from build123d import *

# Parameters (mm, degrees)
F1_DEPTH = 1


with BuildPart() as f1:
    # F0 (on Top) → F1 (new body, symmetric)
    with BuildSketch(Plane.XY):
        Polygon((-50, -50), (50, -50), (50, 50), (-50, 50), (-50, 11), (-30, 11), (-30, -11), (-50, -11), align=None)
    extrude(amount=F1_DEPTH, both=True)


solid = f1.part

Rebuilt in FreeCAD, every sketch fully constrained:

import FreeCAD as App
import Part
import Sketcher
Q = App.Units.Quantity

doc = App.newDocument("Part")
body = doc.addObject("PartDesign::Body", "Body")

# Sketch on XY plane
sketch1 = body.newObject("Sketcher::SketchObject", "Sketch")
sketch1.AttachmentSupport = (doc.getObject("XY_Plane"), [""])
sketch1.MapMode = "FlatFace"
sketch1.addGeometry([
    Part.LineSegment(App.Vector(-50, -50, 0), App.Vector(50, -50, 0)),  # 0
    Part.LineSegment(App.Vector(50, -50, 0), App.Vector(50, 50, 0)),  # 1
    Part.LineSegment(App.Vector(50, 50, 0), App.Vector(-50, 50, 0)),  # 2
    Part.LineSegment(App.Vector(-50, 50, 0), App.Vector(-50, 11, 0)),  # 3
    Part.LineSegment(App.Vector(-50, 11, 0), App.Vector(-30, 11, 0)),  # 4
    Part.LineSegment(App.Vector(-30, 11, 0), App.Vector(-30, -11, 0)),  # 5
    Part.LineSegment(App.Vector(-30, -11, 0), App.Vector(-50, -11, 0)),  # 6
    Part.LineSegment(App.Vector(-50, -11, 0), App.Vector(-50, -50, 0)),  # 7
], False)
sketch1.addConstraint([
    Sketcher.Constraint("Coincident", 0, 2, 1, 1),
    Sketcher.Constraint("Coincident", 1, 2, 2, 1),
    Sketcher.Constraint("Coincident", 2, 2, 3, 1),
    Sketcher.Constraint("Coincident", 3, 2, 4, 1),
    Sketcher.Constraint("Coincident", 4, 2, 5, 1),
    Sketcher.Constraint("Coincident", 5, 2, 6, 1),
    Sketcher.Constraint("Coincident", 6, 2, 7, 1),
    Sketcher.Constraint("Coincident", 7, 2, 0, 1),
    Sketcher.Constraint("Horizontal", 0),
    Sketcher.Constraint("Vertical", 1),
    Sketcher.Constraint("Horizontal", 2),
    Sketcher.Constraint("Vertical", 3),
    Sketcher.Constraint("Horizontal", 4),
    Sketcher.Constraint("Vertical", 5),
    Sketcher.Constraint("Horizontal", 6),
    Sketcher.Constraint("Vertical", 7),
    Sketcher.Constraint("Symmetric", 0, 2, 2, 2, -1, 1),
    Sketcher.Constraint("Symmetric", 3, 2, 6, 2, -1),
    Sketcher.Constraint("Equal", 2, 1),
    Sketcher.Constraint("DistanceX", 0, 1, 0, 2, Q("100 mm")),
    Sketcher.Constraint("DistanceX", 4, 1, 4, 2, Q("20 mm")),
    Sketcher.Constraint("DistanceY", 3, 2, 3, 1, Q("39 mm")),
])
pad1 = body.newObject("PartDesign::Pad", "Pad")
pad1.Profile = sketch1
pad1.Length = 2
pad1.Midplane = True

doc.recompute()
